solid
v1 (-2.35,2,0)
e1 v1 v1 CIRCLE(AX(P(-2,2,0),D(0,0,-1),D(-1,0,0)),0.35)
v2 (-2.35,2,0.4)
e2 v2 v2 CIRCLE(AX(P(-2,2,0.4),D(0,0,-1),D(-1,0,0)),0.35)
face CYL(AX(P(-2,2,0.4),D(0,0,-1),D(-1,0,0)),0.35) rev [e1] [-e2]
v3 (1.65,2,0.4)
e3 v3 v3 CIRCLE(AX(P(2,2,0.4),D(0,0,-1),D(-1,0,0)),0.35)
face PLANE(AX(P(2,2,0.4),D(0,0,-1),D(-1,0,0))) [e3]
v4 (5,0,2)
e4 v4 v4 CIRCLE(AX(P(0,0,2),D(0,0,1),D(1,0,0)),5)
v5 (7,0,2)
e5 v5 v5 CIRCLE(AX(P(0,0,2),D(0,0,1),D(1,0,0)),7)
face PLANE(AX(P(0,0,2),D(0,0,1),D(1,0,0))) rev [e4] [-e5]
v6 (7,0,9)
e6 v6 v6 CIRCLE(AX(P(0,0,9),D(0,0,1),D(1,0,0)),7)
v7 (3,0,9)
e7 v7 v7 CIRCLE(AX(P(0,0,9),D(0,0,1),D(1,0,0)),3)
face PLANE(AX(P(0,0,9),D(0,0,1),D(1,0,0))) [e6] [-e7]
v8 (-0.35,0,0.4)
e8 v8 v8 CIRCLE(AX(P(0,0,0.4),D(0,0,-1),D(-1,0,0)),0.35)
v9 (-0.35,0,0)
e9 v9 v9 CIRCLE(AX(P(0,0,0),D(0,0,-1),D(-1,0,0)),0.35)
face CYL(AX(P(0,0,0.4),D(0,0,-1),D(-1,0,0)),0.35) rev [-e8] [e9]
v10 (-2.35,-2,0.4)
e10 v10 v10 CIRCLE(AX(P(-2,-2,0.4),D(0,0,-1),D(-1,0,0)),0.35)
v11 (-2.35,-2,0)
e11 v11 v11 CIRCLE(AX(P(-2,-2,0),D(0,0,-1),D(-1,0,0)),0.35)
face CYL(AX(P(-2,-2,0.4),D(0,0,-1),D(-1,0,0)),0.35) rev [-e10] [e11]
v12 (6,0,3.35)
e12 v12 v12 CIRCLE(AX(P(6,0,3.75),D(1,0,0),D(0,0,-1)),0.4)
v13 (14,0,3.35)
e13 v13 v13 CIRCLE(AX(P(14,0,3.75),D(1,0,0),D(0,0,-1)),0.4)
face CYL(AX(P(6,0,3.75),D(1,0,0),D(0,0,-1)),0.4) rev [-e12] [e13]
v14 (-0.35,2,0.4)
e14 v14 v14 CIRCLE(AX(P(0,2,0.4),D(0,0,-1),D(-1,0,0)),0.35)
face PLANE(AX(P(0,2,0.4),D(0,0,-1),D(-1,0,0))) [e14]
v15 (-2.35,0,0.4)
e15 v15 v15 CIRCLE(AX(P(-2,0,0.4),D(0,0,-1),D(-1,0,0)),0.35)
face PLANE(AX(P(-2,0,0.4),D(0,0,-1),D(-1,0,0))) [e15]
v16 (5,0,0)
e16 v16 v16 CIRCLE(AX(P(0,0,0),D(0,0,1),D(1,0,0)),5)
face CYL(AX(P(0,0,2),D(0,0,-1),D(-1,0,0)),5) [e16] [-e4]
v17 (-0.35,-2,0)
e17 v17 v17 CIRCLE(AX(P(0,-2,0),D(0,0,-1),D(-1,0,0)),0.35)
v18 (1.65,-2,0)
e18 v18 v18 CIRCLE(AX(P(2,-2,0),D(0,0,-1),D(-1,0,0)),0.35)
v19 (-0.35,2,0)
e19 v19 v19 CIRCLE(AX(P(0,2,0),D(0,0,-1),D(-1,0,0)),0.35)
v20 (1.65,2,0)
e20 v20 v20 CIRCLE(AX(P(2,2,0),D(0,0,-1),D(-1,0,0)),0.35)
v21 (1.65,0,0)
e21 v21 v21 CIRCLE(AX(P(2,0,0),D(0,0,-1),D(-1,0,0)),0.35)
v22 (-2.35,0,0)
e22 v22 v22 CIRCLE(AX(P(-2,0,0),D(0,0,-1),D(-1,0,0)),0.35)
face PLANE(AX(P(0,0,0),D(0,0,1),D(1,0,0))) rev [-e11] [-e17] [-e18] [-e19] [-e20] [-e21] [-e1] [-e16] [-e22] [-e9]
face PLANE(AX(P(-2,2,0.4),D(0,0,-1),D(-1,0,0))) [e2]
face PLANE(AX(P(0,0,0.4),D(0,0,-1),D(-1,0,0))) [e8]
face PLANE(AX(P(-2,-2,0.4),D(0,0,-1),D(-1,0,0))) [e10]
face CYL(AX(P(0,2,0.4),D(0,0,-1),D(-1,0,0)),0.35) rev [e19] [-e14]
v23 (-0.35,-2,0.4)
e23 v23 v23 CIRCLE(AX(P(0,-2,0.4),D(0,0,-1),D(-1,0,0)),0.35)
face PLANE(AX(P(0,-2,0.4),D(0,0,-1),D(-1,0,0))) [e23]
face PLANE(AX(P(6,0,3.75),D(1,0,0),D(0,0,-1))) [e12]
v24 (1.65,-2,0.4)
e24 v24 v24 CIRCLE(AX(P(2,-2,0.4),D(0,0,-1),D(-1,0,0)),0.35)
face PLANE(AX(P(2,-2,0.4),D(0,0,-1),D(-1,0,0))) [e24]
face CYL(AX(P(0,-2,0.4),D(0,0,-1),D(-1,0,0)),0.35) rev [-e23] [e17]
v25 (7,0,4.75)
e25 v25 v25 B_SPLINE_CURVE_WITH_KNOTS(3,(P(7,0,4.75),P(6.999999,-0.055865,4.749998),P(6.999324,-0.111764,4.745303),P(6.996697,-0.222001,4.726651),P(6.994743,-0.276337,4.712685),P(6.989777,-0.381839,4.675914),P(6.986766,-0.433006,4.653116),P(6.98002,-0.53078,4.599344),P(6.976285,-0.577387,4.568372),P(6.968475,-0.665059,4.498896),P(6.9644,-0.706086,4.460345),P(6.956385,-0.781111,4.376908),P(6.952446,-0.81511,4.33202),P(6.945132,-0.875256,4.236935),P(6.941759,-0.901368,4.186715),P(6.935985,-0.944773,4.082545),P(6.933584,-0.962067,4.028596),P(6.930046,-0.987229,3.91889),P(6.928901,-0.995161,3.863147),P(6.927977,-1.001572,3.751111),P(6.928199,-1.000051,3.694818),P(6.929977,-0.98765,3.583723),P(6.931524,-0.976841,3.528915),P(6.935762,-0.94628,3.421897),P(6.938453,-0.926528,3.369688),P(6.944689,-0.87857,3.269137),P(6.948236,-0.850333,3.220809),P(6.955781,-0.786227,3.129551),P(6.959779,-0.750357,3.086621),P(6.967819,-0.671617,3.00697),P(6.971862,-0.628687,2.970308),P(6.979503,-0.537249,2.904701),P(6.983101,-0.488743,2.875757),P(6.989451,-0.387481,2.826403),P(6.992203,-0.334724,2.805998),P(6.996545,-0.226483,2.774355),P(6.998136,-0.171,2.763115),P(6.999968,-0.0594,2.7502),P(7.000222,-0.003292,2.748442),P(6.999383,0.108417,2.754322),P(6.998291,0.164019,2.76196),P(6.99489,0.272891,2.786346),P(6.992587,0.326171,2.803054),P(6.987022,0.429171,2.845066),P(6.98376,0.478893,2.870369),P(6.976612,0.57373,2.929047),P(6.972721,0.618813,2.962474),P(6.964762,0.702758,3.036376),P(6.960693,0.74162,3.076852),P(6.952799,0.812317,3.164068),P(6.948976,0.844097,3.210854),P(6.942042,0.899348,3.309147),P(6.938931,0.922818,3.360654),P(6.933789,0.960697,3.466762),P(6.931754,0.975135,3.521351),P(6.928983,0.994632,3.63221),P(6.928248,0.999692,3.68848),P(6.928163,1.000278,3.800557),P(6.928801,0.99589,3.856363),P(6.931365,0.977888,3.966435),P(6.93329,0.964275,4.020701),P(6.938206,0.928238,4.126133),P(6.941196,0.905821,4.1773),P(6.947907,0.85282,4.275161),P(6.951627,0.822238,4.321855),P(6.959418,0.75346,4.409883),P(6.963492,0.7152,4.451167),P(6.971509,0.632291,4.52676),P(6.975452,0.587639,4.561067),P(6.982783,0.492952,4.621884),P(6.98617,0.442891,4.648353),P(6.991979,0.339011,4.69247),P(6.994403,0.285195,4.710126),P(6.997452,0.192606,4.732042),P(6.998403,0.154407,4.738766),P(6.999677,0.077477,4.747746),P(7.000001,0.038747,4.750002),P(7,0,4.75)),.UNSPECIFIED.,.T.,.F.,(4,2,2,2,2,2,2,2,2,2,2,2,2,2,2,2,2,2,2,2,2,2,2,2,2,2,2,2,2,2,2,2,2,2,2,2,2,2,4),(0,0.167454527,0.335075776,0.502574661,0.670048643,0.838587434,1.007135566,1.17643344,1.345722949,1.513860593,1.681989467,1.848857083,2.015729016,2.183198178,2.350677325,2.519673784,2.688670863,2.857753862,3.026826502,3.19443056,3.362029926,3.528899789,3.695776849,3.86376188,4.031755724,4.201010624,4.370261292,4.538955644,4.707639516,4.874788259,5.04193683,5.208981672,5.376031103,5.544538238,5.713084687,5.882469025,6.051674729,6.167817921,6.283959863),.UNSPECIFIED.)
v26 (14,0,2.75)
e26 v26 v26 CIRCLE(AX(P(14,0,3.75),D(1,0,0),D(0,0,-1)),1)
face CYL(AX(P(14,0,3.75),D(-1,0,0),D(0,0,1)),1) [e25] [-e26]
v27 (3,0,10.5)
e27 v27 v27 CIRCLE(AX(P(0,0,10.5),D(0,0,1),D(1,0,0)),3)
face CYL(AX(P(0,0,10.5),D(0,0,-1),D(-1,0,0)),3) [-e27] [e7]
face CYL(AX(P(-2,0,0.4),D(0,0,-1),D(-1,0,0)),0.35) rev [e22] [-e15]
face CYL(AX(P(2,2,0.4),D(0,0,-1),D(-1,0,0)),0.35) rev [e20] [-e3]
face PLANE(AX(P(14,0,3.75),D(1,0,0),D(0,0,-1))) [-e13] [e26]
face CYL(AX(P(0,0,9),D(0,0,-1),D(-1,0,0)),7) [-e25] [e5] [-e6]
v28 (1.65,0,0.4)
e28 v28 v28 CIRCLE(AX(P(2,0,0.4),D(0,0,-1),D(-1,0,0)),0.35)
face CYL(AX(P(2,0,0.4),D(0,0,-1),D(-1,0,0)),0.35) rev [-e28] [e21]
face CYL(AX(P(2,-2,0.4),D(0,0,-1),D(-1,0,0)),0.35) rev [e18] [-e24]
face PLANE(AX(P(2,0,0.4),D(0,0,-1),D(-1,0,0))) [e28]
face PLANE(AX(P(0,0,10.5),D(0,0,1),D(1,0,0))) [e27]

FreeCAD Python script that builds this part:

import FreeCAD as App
import Part
import Sketcher
Q = App.Units.Quantity

doc = App.newDocument("Part")
body = doc.addObject("PartDesign::Body", "Body")

# Sketch on XY plane
sketch1 = body.newObject("Sketcher::SketchObject", "Sketch")
sketch1.AttachmentSupport = (doc.getObject("XY_Plane"), [""])
sketch1.MapMode = "FlatFace"
sketch1.addGeometry(Part.Circle(App.Vector(0, 0, 0), App.Vector(0, 0, 1), 5), False)
sketch1.addConstraint([
    Sketcher.Constraint("Coincident", 0, 3, -1, 1),
    Sketcher.Constraint("Diameter", 0, Q("10 mm")),
])
pad1 = body.newObject("PartDesign::Pad", "Pad")
pad1.Profile = sketch1
pad1.Length = 2

# Sketch on XY plane
sketch2 = body.newObject("Sketcher::SketchObject", "Sketch001")
sketch2.AttachmentSupport = (doc.getObject("XY_Plane"), [""])
sketch2.MapMode = "FlatFace"
sketch2.AttachmentOffset = App.Placement(App.Vector(0, 0, 2), App.Rotation())
sketch2.addGeometry(Part.Circle(App.Vector(0, 0, 0), App.Vector(0, 0, 1), 7), False)
sketch2.addConstraint([
    Sketcher.Constraint("Coincident", 0, 3, -1, 1),
    Sketcher.Constraint("Diameter", 0, Q("14 mm")),
])
pad2 = body.newObject("PartDesign::Pad", "Pad001")
pad2.Profile = sketch2
pad2.Length = 7

# Sketch on XY plane
sketch3 = body.newObject("Sketcher::SketchObject", "Sketch002")
sketch3.AttachmentSupport = (doc.getObject("XY_Plane"), [""])
sketch3.MapMode = "FlatFace"
sketch3.AttachmentOffset = App.Placement(App.Vector(0, 0, 9), App.Rotation())
sketch3.addGeometry(Part.Circle(App.Vector(0, 0, 0), App.Vector(0, 0, 1), 3), False)
sketch3.addConstraint([
    Sketcher.Constraint("Coincident", 0, 3, -1, 1),
    Sketcher.Constraint("Diameter", 0, Q("6 mm")),
])
pad3 = body.newObject("PartDesign::Pad", "Pad002")
pad3.Profile = sketch3
pad3.Length = 1.5

# Sketch on YZ plane
sketch4 = body.newObject("Sketcher::SketchObject", "Sketch003")
sketch4.AttachmentSupport = (doc.getObject("YZ_Plane"), [""])
sketch4.MapMode = "FlatFace"
sketch4.AttachmentOffset = App.Placement(App.Vector(0, 0, 6), App.Rotation())
sketch4.addGeometry(Part.Circle(App.Vector(0, 3.8, 0), App.Vector(0, 0, 1), 1), False)
sketch4.addConstraint([
    Sketcher.Constraint("PointOnObject", 0, 3, -2),
    Sketcher.Constraint("Diameter", 0, Q("2 mm")),
    Sketcher.Constraint("DistanceY", -1, 1, 0, 3, Q("3.75 mm")),
])
pad4 = body.newObject("PartDesign::Pad", "Pad003")
pad4.Profile = sketch4
pad4.Length = 8

# Sketch on YZ plane
sketch5 = body.newObject("Sketcher::SketchObject", "Sketch004")
sketch5.AttachmentSupport = (doc.getObject("YZ_Plane"), [""])
sketch5.MapMode = "FlatFace"
sketch5.AttachmentOffset = App.Placement(App.Vector(0, 0, 14), App.Rotation())
sketch5.addGeometry(Part.Circle(App.Vector(0, 3.75, 0), App.Vector(0, 0, 1), 0.4), False)
sketch5.addConstraint([
    Sketcher.Constraint("PointOnObject", 0, 3, -2),
    Sketcher.Constraint("Diameter", 0, Q("0.8 mm")),
    Sketcher.Constraint("DistanceY", -1, 1, 0, 3, Q("3.75 mm")),
])
pocket1 = body.newObject("PartDesign::Pocket", "Pocket")
pocket1.Profile = sketch5
pocket1.Length = 8

# Sketch on XY plane
sketch6 = body.newObject("Sketcher::SketchObject", "Sketch005")
sketch6.AttachmentSupport = (doc.getObject("XY_Plane"), [""])
sketch6.MapMode = "FlatFace"
sketch6.addGeometry([
    Part.Circle(App.Vector(0, 0, 0), App.Vector(0, 0, 1), 0.35),  # 0
    Part.Circle(App.Vector(0, 2, 0), App.Vector(0, 0, 1), 0.35),  # 1
    Part.Circle(App.Vector(0, -2, 0), App.Vector(0, 0, 1), 0.35),  # 2
    Part.Circle(App.Vector(-2, 0, 0), App.Vector(0, 0, 1), 0.35),  # 3
    Part.Circle(App.Vector(-2, 2, 0), App.Vector(0, 0, 1), 0.35),  # 4
    Part.Circle(App.Vector(-2, -2, 0), App.Vector(0, 0, 1), 0.35),  # 5
    Part.Circle(App.Vector(2, 0, 0), App.Vector(0, 0, 1), 0.35),  # 6
    Part.Circle(App.Vector(2, 2, 0), App.Vector(0, 0, 1), 0.35),  # 7
    Part.Circle(App.Vector(2, -2, 0), App.Vector(0, 0, 1), 0.35),  # 8
], False)
sketch6.addConstraint([
    Sketcher.Constraint("Coincident", 0, 3, -1, 1),
    Sketcher.Constraint("Equal", 0, 1),
    Sketcher.Constraint("Equal", 1, 2),
    Sketcher.Constraint("Equal", 2, 3),
    Sketcher.Constraint("Equal", 3, 4),
    Sketcher.Constraint("Equal", 4, 5),
    Sketcher.Constraint("Equal", 5, 6),
    Sketcher.Constraint("Equal", 6, 7),
    Sketcher.Constraint("Equal", 7, 8),
    Sketcher.Constraint("Symmetric", 1, 3, 2, 3, -1, 1),
    Sketcher.Constraint("Symmetric", 3, 3, 6, 3, -1, 1),
    Sketcher.Constraint("Symmetric", 5, 3, 7, 3, -1, 1),
    Sketcher.Constraint("Symmetric", 4, 3, 8, 3, -1, 1),
    Sketcher.Constraint("Symmetric", 4, 3, 7, 3, -2),
    Sketcher.Constraint("PointOnObject", 1, 3, -2),
    Sketcher.Constraint("PointOnObject", 3, 3, -1),
    Sketcher.Constraint("Horizontal", 1, 3, 4, 3),
    Sketcher.Constraint("Vertical", 3, 3, 4, 3),
    Sketcher.Constraint("Diameter", 0, Q("0.7 mm")),
    Sketcher.Constraint("DistanceY", -1, 1, 1, 3, Q("2 mm")),
    Sketcher.Constraint("DistanceX", 3, 3, -1, 1, Q("2 mm")),
])
pocket2 = body.newObject("PartDesign::Pocket", "Pocket001")
pocket2.Profile = sketch6
pocket2.Length = 0.4
pocket2.Reversed = True

doc.recompute()
